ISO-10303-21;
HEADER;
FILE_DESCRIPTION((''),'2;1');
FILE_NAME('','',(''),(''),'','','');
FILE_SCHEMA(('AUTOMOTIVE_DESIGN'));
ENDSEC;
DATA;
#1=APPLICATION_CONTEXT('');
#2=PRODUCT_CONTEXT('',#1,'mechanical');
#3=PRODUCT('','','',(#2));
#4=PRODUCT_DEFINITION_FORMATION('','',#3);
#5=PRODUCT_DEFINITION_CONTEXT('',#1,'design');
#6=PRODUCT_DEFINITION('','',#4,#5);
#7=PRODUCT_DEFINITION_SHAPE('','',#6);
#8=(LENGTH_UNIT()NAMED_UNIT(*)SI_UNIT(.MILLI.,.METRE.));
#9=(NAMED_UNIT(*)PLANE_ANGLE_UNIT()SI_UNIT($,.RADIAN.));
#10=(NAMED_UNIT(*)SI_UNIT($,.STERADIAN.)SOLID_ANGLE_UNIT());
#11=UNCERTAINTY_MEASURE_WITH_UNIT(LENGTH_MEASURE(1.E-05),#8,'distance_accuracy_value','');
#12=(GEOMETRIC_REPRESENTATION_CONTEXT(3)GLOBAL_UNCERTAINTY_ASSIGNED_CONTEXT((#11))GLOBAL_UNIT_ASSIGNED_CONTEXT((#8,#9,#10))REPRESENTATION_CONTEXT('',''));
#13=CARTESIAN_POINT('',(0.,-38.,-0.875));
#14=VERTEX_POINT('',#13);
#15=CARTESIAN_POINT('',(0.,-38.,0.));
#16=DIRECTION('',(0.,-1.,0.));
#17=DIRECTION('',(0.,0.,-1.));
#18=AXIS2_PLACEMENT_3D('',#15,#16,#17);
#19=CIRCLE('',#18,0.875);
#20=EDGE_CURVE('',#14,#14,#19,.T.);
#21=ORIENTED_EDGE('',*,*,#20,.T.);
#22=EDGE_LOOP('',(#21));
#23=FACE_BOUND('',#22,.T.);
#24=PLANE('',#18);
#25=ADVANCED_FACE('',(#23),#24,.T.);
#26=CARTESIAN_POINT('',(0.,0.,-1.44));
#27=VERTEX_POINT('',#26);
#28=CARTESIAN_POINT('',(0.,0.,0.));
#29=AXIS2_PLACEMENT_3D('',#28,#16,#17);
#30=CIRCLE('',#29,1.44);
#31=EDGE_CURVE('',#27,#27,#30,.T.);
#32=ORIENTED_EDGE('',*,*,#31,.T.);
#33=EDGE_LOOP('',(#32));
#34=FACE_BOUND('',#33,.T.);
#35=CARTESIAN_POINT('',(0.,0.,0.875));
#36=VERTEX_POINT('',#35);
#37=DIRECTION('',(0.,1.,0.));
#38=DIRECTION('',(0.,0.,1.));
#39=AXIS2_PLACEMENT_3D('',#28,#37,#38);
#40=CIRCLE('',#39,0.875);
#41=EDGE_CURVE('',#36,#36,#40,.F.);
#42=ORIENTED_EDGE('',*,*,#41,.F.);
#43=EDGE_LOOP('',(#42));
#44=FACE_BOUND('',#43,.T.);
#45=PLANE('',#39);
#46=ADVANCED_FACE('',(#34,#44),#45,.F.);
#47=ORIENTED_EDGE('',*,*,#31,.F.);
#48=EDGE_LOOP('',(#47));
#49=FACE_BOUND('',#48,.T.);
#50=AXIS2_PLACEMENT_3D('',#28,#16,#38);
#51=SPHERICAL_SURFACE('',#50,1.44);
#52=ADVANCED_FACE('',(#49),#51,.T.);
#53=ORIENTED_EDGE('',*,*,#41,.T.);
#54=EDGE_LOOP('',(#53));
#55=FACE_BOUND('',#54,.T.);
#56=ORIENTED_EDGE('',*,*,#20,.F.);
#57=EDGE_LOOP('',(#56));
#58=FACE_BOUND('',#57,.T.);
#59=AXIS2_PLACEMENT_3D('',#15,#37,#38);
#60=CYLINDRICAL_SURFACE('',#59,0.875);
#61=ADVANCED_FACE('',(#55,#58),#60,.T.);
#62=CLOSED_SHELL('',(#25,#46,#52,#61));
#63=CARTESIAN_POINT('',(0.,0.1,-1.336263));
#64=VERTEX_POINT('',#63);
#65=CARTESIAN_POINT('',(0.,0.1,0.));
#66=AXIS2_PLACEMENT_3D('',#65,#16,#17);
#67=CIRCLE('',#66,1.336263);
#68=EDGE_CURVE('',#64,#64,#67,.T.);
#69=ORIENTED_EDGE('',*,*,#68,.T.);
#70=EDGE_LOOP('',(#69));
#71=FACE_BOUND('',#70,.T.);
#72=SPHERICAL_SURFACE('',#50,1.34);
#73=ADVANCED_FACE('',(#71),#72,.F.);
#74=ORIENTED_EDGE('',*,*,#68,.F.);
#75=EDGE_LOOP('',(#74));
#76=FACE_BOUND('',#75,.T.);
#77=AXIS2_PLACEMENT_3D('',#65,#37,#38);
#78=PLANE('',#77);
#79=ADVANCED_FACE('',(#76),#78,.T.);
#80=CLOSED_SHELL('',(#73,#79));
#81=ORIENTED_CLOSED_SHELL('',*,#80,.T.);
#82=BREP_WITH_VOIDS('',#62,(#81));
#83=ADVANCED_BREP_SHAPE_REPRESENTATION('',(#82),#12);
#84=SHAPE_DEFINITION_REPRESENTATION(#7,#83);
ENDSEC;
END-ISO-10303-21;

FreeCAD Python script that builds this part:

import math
import FreeCAD as App
import Part
import Sketcher

doc = App.newDocument("Part")
body = doc.addObject("PartDesign::Body", "Body")

# Sketch on YZ plane
sketch1 = body.newObject("Sketcher::SketchObject", "Sketch")
sketch1.AttachmentSupport = (doc.getObject("YZ_Plane"), [""])
sketch1.MapMode = "FlatFace"
sketch1.addGeometry(Part.LineSegment(App.Vector(0, 0, 0), App.Vector(0, -1.44, 0)), False)
sketch1.addGeometry(Part.ArcOfCircle(Part.Circle(App.Vector(0, 0, 0), App.Vector(0, 0, 1), 1.44), math.radians(-90), math.radians(0)), False)
sketch1.addGeometry(Part.LineSegment(App.Vector(1.44, 0, 0), App.Vector(1.34, 0, 0)), False)
sketch1.addGeometry(Part.ArcOfCircle(Part.Circle(App.Vector(0, 0, 0), App.Vector(0, 0, 1), 1.34), math.radians(-86), math.radians(0)), False)
sketch1.addGeometry(Part.LineSegment(App.Vector(0.1, -1.34, 0), App.Vector(0.1, 0, 0)), False)
sketch1.addGeometry(Part.LineSegment(App.Vector(0.1, 0, 0), App.Vector(0, 0, 0)), False)
sketch1.addConstraint(Sketcher.Constraint("Coincident", 0, 2, 1, 1))
sketch1.addConstraint(Sketcher.Constraint("Coincident", 1, 2, 2, 1))
sketch1.addConstraint(Sketcher.Constraint("Coincident", 2, 2, 3, 2))
sketch1.addConstraint(Sketcher.Constraint("Coincident", 3, 1, 4, 1))
sketch1.addConstraint(Sketcher.Constraint("Coincident", 4, 2, 5, 1))
sketch1.addConstraint(Sketcher.Constraint("Coincident", 5, 2, 0, 1))
sketch1.addConstraint(Sketcher.Constraint("Vertical", 0))
sketch1.addConstraint(Sketcher.Constraint("Horizontal", 2))
sketch1.addConstraint(Sketcher.Constraint("Vertical", 4))
sketch1.addConstraint(Sketcher.Constraint("Horizontal", 5))
sketch1.addConstraint(Sketcher.Constraint("Coincident", 1, 3, -1, 1))
sketch1.addConstraint(Sketcher.Constraint("Coincident", 3, 3, -1, 1))
sketch1.addConstraint(Sketcher.Constraint("Coincident", 5, 2, -1, 1))
sketch1.addConstraint(Sketcher.Constraint("PointOnObject", 1, 2, -1))
sketch1.addConstraint(Sketcher.Constraint("Equal", 2, 5))
sketch1.addConstraint(Sketcher.Constraint("Radius", 1, 1.44))
sketch1.addConstraint(Sketcher.Constraint("Radius", 3, 1.34))
revolution = body.newObject("PartDesign::Revolution", "Revolution")
revolution.Profile = sketch1
revolution.ReferenceAxis = (sketch1, ["H_Axis"])
revolution.Angle = 360

# Sketch on XZ plane
sketch2 = body.newObject("Sketcher::SketchObject", "Sketch001")
sketch2.AttachmentSupport = (doc.getObject("XZ_Plane"), [""])
sketch2.MapMode = "FlatFace"
sketch2.addGeometry(Part.Circle(App.Vector(0, 0, 0), App.Vector(0, 0, 1), 0.9), False)
sketch2.addConstraint(Sketcher.Constraint("Coincident", 0, 3, -1, 1))
sketch2.addConstraint(Sketcher.Constraint("Diameter", 0, 1.75))
pad1 = body.newObject("PartDesign::Pad", "Pad")
pad1.Profile = sketch2
pad1.Length = 38

doc.recompute()
